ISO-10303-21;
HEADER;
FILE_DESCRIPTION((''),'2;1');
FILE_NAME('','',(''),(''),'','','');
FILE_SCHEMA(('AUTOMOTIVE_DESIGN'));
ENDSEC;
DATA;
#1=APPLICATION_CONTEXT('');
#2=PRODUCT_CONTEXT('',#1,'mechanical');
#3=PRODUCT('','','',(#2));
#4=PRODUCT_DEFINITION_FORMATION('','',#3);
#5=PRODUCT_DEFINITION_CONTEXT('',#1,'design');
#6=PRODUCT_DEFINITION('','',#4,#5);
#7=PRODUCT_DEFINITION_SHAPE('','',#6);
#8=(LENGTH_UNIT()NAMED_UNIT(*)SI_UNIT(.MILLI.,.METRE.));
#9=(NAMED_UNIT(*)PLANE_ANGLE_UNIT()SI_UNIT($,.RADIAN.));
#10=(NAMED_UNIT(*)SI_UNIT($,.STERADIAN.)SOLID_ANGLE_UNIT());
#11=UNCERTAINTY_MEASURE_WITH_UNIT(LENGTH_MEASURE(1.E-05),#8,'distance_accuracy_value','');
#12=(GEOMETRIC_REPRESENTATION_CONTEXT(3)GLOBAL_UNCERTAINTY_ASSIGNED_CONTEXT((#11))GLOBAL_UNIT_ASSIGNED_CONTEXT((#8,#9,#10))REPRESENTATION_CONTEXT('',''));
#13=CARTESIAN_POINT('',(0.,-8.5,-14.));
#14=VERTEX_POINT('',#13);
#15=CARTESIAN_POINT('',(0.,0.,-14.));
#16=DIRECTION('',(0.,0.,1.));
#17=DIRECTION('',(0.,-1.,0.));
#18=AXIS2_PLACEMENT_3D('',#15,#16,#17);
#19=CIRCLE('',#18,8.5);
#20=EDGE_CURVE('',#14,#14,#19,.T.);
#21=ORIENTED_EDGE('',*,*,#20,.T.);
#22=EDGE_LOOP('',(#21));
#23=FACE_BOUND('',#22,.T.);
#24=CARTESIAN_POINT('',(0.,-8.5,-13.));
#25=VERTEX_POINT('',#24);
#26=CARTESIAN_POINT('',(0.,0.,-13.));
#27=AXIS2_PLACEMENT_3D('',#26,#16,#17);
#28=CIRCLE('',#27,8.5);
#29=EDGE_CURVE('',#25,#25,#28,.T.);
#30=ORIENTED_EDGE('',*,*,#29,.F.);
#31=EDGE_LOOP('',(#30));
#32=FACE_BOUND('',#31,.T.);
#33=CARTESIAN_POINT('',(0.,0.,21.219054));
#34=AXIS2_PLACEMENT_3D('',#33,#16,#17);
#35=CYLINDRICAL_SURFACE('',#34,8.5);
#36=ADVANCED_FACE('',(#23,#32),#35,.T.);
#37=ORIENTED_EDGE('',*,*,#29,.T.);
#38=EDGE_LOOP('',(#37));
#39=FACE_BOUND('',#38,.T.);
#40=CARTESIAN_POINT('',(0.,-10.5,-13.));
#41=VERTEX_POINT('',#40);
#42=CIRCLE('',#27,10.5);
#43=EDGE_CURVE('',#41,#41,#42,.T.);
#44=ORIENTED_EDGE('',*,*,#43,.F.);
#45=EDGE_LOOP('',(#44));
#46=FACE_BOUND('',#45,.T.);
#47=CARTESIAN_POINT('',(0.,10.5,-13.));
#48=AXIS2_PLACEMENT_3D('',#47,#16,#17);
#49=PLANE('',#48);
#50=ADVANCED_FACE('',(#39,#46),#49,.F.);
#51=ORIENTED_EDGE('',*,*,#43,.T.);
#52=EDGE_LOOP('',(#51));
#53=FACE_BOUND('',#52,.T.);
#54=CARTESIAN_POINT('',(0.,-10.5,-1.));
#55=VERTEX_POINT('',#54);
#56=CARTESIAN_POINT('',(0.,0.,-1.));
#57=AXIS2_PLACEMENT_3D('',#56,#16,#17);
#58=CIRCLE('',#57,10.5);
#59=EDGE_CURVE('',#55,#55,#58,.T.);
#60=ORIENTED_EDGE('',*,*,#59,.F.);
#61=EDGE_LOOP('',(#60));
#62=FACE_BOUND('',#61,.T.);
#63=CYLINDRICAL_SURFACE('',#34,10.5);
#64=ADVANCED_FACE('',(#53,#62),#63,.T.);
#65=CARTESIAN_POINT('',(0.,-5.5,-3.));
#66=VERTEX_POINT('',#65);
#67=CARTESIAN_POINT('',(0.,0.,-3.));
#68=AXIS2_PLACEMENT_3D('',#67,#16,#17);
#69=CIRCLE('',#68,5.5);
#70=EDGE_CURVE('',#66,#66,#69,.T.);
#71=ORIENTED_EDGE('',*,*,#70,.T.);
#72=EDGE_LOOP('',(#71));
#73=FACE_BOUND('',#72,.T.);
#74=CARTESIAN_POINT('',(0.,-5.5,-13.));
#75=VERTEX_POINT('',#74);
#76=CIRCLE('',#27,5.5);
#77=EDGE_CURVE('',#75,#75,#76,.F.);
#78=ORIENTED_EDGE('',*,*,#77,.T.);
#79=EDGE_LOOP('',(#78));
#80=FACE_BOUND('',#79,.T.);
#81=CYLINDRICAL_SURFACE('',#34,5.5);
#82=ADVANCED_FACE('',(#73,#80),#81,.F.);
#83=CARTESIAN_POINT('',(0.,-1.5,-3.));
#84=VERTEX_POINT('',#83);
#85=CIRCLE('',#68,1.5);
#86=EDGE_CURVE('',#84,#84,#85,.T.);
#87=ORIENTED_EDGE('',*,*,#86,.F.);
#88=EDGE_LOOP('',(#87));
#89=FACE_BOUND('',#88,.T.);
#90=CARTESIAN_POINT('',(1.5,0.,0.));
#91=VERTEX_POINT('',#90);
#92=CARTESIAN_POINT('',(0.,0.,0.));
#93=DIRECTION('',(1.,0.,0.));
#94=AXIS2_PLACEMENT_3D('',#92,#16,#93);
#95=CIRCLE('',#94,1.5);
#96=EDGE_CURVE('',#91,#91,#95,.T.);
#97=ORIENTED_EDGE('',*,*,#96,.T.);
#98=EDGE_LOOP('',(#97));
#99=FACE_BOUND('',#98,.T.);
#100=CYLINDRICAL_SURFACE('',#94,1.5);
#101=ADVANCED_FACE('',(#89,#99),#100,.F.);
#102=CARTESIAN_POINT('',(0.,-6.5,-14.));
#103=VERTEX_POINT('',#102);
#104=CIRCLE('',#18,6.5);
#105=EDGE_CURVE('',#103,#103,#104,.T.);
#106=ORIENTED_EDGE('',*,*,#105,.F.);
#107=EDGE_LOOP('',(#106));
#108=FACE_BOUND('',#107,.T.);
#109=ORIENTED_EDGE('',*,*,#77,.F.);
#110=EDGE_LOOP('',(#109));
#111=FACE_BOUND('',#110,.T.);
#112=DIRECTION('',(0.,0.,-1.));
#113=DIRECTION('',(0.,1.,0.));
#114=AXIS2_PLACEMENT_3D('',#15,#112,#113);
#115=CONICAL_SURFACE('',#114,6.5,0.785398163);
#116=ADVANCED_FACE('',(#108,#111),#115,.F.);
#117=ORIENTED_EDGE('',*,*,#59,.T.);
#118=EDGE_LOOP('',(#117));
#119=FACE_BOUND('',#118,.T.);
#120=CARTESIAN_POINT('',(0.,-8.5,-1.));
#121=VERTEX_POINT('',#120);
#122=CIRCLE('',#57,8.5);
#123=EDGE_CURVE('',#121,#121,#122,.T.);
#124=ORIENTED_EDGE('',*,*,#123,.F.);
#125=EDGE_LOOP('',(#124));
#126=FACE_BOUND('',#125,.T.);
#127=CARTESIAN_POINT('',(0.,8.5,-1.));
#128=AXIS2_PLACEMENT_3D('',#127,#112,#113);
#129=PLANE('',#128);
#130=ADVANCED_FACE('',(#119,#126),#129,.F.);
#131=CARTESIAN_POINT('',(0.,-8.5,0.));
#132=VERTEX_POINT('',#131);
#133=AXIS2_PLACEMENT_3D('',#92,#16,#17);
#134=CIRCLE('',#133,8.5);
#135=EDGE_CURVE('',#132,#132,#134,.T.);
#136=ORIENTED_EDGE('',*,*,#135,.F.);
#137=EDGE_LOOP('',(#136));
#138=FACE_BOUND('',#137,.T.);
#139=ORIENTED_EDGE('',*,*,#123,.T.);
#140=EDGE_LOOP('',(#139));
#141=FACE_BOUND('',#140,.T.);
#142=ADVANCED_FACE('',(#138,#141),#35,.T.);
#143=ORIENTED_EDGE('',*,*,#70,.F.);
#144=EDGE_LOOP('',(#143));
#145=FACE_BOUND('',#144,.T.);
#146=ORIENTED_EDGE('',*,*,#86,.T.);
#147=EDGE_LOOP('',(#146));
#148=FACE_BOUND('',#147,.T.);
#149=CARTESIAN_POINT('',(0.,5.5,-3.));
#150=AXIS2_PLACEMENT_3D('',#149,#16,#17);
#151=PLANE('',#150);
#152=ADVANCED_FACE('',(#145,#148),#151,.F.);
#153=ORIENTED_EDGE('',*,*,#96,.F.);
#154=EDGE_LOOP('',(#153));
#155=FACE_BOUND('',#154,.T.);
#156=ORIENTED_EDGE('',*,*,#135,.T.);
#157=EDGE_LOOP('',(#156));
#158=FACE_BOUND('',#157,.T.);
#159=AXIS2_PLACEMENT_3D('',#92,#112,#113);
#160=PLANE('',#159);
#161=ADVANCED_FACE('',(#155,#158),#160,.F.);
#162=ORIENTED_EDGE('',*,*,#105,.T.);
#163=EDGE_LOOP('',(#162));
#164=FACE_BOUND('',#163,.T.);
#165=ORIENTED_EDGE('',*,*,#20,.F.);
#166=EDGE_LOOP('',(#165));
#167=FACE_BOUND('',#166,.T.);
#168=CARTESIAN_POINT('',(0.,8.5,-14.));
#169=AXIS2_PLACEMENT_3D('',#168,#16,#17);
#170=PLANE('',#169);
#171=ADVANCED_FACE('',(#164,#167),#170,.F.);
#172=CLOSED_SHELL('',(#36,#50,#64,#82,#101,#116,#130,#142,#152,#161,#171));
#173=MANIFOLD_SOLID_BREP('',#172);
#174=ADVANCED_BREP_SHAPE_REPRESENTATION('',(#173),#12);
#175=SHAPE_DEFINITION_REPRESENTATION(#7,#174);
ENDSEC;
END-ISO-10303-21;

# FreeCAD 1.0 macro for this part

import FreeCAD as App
import Part
import Sketcher
from FreeCAD import Vector
Q = App.Units.Quantity


def edges_at(feature, points):
    """Names of the edges that pass closest to the given points."""
    edges = feature.Shape.Edges
    near = lambda p: min(range(len(edges)), key=lambda i: edges[i].distToShape(Part.Vertex(*p))[0])
    return sorted({f"Edge{near(p) + 1}" for p in points})

doc = App.newDocument("Part")
params = doc.addObject("Spreadsheet::Sheet", "Params")
for row, (alias, value) in enumerate([
    ("sketch1_width", "3 mm"),
    ("sketch1_width2", "2 mm"),
    ("sketch1_height", "11 mm"),
    ("sketch1_height2", "1 mm"),
    ("sketch1_width3", "8.5 mm"),
    ("revolution_angle", "360 deg"),
    ("sketch2_diameter", "3 mm"),
    ("hole_diameter", "3 mm"),
    ("chamfer_size", "1 mm"),
], start=1):
    params.set(f"A{row}", alias)
    params.set(f"B{row}", "=" + value)
    params.setAlias(f"B{row}", alias)

body = doc.addObject("PartDesign::Body", "Body")

sketch1 = doc.addObject("Sketcher::SketchObject", "Sketch")
body.addObject(sketch1)
sketch1.AttachmentSupport = (doc.YZ_Plane, [""])
sketch1.MapMode = "FlatFace"
sketch1.addGeometry([
    Part.LineSegment(Vector(8.5, 0, 0), Vector(0, 0, 0)),
    Part.LineSegment(Vector(0, 0, 0), Vector(0, -3, 0)),
    Part.LineSegment(Vector(0, -3, 0), Vector(5.5, -3, 0)),
    Part.LineSegment(Vector(5.5, -3, 0), Vector(5.5, -14, 0)),
    Part.LineSegment(Vector(5.5, -14, 0), Vector(8.5, -14, 0)),
    Part.LineSegment(Vector(8.5, -14, 0), Vector(8.5, -13, 0)),
    Part.LineSegment(Vector(8.5, -13, 0), Vector(10.5, -13, 0)),
    Part.LineSegment(Vector(10.5, -13, 0), Vector(10.5, -1, 0)),
    Part.LineSegment(Vector(10.5, -1, 0), Vector(8.5, -1, 0)),
    Part.LineSegment(Vector(8.5, -1, 0), Vector(8.5, 0, 0)),
], False)
sketch1.addConstraint([
    Sketcher.Constraint("Coincident", 0, 2, 1, 1),
    Sketcher.Constraint("Coincident", 1, 2, 2, 1),
    Sketcher.Constraint("Coincident", 2, 2, 3, 1),
    Sketcher.Constraint("Coincident", 3, 2, 4, 1),
    Sketcher.Constraint("Coincident", 4, 2, 5, 1),
    Sketcher.Constraint("Coincident", 5, 2, 6, 1),
    Sketcher.Constraint("Coincident", 6, 2, 7, 1),
    Sketcher.Constraint("Coincident", 7, 2, 8, 1),
    Sketcher.Constraint("Coincident", 8, 2, 9, 1),
    Sketcher.Constraint("Coincident", 9, 2, 0, 1),
    Sketcher.Constraint("Horizontal", 0),
    Sketcher.Constraint("Vertical", 1),
    Sketcher.Constraint("Horizontal", 2),
    Sketcher.Constraint("Vertical", 3),
    Sketcher.Constraint("Horizontal", 4),
    Sketcher.Constraint("Vertical", 5),
    Sketcher.Constraint("Horizontal", 6),
    Sketcher.Constraint("Vertical", 7),
    Sketcher.Constraint("Horizontal", 8),
    Sketcher.Constraint("Vertical", 9),
    Sketcher.Constraint("Coincident", 0, 2, -1, 1),
    Sketcher.Constraint("Vertical", 5, 2, 8, 2),
    Sketcher.Constraint("Equal", 4, 1),
    Sketcher.Constraint("Equal", 5, 9),
    Sketcher.Constraint("DistanceX", 4, 1, 4, 2, Q("3 mm")),
    Sketcher.Constraint("DistanceX", 6, 1, 6, 2, Q("2 mm")),
    Sketcher.Constraint("DistanceY", 3, 2, 3, 1, Q("11 mm")),
    Sketcher.Constraint("DistanceY", 5, 1, 5, 2, Q("1 mm")),
    Sketcher.Constraint("DistanceX", 0, 2, 0, 1, Q("8.5 mm")),
])
sketch1.setExpression("Constraints[24]", "Params.sketch1_width")
sketch1.setExpression("Constraints[25]", "Params.sketch1_width2")
sketch1.setExpression("Constraints[26]", "Params.sketch1_height")
sketch1.setExpression("Constraints[27]", "Params.sketch1_height2")
sketch1.setExpression("Constraints[28]", "Params.sketch1_width3")
revolution = doc.addObject("PartDesign::Revolution", "Revolution")
body.addObject(revolution)
revolution.Profile = sketch1
revolution.ReferenceAxis = (sketch1, ["V_Axis"])
revolution.setExpression("Angle", "Params.revolution_angle")

sketch2 = doc.addObject("Sketcher::SketchObject", "Sketch001")
body.addObject(sketch2)
sketch2.AttachmentSupport = (doc.XY_Plane, [""])
sketch2.MapMode = "FlatFace"
sketch2.addGeometry(Part.Circle(Vector(0, 0, 0), Vector(0, 0, 1), 1.5), False)
sketch2.addConstraint([
    Sketcher.Constraint("Coincident", 0, 3, -1, 1),
    Sketcher.Constraint("Diameter", 0, Q("3 mm")),
])
sketch2.setExpression("Constraints[1]", "Params.sketch2_diameter")
doc.recompute()
hole = doc.addObject("PartDesign::Hole", "Hole")
body.addObject(hole)
hole.Profile = sketch2
hole.ThreadType = "None"
hole.setExpression("Diameter", "Params.hole_diameter")
hole.DepthType = "ThroughAll"
doc.recompute()

chamfer = doc.addObject("PartDesign::Chamfer", "Chamfer")
body.addObject(chamfer)
chamfer.Base = (hole, edges_at(hole, [(0, 5.5, -14)]))
chamfer.setExpression("Size", "Params.chamfer_size")

doc.recompute()
